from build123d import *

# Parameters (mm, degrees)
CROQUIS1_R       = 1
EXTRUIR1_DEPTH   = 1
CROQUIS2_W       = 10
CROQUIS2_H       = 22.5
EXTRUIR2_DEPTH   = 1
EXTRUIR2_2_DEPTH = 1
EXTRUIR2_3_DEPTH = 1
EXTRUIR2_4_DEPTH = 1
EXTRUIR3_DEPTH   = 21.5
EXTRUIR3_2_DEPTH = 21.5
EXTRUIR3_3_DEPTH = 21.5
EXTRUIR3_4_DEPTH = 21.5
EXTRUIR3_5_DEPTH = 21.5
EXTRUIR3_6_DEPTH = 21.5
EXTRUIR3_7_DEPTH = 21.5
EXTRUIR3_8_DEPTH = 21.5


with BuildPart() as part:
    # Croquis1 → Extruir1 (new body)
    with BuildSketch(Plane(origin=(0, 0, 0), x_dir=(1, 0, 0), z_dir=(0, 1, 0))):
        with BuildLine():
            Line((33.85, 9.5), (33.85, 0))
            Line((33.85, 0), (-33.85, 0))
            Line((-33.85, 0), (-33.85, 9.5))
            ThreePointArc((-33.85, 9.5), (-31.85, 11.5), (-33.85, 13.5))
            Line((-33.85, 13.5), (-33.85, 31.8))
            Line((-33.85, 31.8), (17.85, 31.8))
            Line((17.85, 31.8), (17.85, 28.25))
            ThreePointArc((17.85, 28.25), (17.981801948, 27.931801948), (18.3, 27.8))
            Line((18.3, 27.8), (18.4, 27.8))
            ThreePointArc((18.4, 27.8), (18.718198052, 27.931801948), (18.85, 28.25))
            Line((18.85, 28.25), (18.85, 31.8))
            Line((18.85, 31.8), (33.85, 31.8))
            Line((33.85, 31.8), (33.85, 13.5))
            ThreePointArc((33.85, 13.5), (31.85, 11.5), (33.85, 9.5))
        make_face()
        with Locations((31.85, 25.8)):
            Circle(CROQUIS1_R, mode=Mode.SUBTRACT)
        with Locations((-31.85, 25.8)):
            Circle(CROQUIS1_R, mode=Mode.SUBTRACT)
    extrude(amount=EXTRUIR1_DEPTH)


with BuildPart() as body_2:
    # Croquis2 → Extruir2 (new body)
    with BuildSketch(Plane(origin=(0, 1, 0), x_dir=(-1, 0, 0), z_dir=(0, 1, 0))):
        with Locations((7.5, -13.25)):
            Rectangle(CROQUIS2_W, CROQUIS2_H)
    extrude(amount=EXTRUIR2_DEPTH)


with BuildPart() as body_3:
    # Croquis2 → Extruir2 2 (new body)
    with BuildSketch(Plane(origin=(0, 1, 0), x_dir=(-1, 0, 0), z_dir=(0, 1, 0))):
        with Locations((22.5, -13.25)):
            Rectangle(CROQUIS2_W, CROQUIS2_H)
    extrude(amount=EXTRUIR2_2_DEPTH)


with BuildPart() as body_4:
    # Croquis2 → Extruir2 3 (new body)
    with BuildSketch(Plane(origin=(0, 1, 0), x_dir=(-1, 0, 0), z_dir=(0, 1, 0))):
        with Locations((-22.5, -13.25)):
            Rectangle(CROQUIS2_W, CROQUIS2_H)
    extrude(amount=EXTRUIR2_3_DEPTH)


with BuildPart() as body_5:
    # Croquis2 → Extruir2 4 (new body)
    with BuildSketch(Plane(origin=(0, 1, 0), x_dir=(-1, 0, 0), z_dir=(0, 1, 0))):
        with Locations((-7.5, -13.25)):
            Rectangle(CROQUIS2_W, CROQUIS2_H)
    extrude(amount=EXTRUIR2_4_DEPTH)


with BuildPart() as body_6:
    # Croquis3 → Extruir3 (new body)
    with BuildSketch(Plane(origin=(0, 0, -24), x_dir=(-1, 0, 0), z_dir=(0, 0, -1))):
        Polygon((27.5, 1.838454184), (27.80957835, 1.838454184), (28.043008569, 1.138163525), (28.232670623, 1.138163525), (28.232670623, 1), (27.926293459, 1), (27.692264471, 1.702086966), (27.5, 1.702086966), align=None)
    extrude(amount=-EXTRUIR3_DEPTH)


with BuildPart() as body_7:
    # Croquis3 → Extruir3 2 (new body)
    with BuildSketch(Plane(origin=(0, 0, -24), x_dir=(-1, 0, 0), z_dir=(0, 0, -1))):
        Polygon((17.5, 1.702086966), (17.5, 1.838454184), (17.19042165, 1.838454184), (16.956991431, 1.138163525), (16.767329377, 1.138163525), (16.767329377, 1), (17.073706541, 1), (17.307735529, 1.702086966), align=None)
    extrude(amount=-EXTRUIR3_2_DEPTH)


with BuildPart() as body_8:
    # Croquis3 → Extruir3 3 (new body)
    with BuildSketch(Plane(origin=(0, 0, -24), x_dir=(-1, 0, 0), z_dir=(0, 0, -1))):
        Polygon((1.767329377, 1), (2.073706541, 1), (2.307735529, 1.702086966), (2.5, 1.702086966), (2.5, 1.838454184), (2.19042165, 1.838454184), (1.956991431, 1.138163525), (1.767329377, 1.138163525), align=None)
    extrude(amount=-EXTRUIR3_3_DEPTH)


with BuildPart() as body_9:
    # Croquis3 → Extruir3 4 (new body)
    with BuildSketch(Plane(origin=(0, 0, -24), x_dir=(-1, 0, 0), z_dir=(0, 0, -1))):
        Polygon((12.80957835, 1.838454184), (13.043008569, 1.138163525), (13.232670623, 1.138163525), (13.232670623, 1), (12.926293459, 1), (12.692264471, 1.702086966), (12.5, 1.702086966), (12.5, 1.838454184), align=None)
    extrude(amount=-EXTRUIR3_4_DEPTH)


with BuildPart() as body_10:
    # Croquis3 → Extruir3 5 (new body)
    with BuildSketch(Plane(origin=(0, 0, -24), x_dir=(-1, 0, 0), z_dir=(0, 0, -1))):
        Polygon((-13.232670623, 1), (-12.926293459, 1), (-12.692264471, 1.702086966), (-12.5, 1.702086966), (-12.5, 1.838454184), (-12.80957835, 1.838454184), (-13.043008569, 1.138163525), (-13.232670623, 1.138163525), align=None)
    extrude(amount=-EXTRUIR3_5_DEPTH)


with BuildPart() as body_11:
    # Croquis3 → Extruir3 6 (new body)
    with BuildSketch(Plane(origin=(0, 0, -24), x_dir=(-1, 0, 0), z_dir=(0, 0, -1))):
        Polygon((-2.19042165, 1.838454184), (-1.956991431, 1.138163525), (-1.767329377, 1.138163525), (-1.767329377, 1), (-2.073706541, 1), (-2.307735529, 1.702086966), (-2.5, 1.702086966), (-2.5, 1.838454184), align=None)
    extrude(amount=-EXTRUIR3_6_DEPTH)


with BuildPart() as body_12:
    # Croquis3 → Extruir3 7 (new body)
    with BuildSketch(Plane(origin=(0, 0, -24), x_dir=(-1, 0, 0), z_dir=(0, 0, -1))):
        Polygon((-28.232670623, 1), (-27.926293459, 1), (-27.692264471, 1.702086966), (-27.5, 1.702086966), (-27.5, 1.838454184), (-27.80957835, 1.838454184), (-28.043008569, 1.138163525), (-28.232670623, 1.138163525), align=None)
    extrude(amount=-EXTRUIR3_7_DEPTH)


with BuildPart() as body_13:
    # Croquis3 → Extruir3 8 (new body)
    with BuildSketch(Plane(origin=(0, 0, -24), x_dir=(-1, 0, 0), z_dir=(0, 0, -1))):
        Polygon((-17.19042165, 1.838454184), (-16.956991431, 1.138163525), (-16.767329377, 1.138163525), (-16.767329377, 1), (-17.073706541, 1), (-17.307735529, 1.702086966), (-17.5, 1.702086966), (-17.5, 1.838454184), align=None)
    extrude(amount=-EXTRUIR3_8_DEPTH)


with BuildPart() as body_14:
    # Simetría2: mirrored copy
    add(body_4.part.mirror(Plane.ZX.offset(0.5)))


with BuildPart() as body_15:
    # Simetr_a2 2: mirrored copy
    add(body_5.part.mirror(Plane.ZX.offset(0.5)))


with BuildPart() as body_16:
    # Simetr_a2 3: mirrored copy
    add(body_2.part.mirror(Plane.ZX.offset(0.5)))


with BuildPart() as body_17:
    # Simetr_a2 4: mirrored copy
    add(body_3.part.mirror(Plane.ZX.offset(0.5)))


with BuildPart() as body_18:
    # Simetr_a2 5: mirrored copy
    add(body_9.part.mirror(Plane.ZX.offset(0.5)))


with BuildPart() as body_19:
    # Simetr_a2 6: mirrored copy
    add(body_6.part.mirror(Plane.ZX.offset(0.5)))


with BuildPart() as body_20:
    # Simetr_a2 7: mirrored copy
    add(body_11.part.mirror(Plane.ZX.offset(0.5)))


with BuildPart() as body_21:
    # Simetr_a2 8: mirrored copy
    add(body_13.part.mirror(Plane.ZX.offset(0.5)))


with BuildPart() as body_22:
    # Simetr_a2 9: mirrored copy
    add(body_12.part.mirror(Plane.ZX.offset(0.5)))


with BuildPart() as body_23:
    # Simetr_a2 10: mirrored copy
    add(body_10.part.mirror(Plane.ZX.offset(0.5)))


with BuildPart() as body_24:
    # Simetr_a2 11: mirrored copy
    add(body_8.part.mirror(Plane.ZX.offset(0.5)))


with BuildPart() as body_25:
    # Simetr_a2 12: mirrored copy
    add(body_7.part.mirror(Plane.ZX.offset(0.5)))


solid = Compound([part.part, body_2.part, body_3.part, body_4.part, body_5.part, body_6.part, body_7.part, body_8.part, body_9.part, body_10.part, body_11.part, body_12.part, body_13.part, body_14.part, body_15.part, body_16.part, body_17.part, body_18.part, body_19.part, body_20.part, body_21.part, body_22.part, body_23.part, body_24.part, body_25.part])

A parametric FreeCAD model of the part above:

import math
import FreeCAD as App
import Part
import Sketcher


def add_polygon(sketch, points):
    """Adds a closed chain of lines whose ends are joined by coincident constraints."""
    first, n = sketch.GeometryCount, len(points)
    for a, b in zip(points, points[1:] + points[:1]):
        sketch.addGeometry(Part.LineSegment(App.Vector(*a, 0), App.Vector(*b, 0)), False)
    for i in range(n):
        sketch.addConstraint(Sketcher.Constraint("Coincident", first + i, 2, first + (i + 1) % n, 1))

doc = App.newDocument("Part")
body = doc.addObject("PartDesign::Body", "Body")

# Sketch on XZ plane
sketch1 = body.newObject("Sketcher::SketchObject", "Sketch")
sketch1.AttachmentSupport = (doc.getObject("XZ_Plane"), [""])
sketch1.MapMode = "FlatFace"
sketch1.addGeometry(Part.LineSegment(App.Vector(33.85, 0, 0), App.Vector(33.85, -9.5, 0)), False)
sketch1.addGeometry(Part.ArcOfCircle(Part.Circle(App.Vector(33.85, -11.5, 0), App.Vector(0, 0, 1), 2), math.radians(90), math.radians(270)), False)
sketch1.addGeometry(Part.LineSegment(App.Vector(33.85, -13.5, 0), App.Vector(33.85, -31.8, 0)), False)
sketch1.addGeometry(Part.LineSegment(App.Vector(33.85, -31.8, 0), App.Vector(18.85, -31.8, 0)), False)
sketch1.addGeometry(Part.LineSegment(App.Vector(18.85, -31.8, 0), App.Vector(18.85, -28.25, 0)), False)
sketch1.addGeometry(Part.ArcOfCircle(Part.Circle(App.Vector(18.4, -28.25, 0), App.Vector(0, 0, 1), 0.45), math.radians(0), math.radians(90)), False)
sketch1.addGeometry(Part.LineSegment(App.Vector(18.4, -27.8, 0), App.Vector(18.3, -27.8, 0)), False)
sketch1.addGeometry(Part.ArcOfCircle(Part.Circle(App.Vector(18.3, -28.25, 0), App.Vector(0, 0, 1), 0.45), math.radians(90), math.radians(180)), False)
sketch1.addGeometry(Part.LineSegment(App.Vector(17.85, -28.25, 0), App.Vector(17.85, -31.8, 0)), False)
sketch1.addGeometry(Part.LineSegment(App.Vector(17.85, -31.8, 0), App.Vector(-33.85, -31.8, 0)), False)
sketch1.addGeometry(Part.LineSegment(App.Vector(-33.85, -31.8, 0), App.Vector(-33.85, -13.5, 0)), False)
sketch1.addGeometry(Part.ArcOfCircle(Part.Circle(App.Vector(-33.85, -11.5, 0), App.Vector(0, 0, 1), 2), math.radians(-90), math.radians(90)), False)
sketch1.addGeometry(Part.LineSegment(App.Vector(-33.85, -9.5, 0), App.Vector(-33.85, 0, 0)), False)
sketch1.addGeometry(Part.LineSegment(App.Vector(-33.85, 0, 0), App.Vector(33.85, 0, 0)), False)
sketch1.addGeometry(Part.Circle(App.Vector(31.85, -25.8, 0), App.Vector(0, 0, 1), 1), False)
sketch1.addGeometry(Part.Circle(App.Vector(-31.85, -25.8, 0), App.Vector(0, 0, 1), 1), False)
sketch1.addConstraint(Sketcher.Constraint("Coincident", 0, 2, 1, 1))
sketch1.addConstraint(Sketcher.Constraint("Coincident", 1, 2, 2, 1))
sketch1.addConstraint(Sketcher.Constraint("Coincident", 2, 2, 3, 1))
sketch1.addConstraint(Sketcher.Constraint("Coincident", 3, 2, 4, 1))
sketch1.addConstraint(Sketcher.Constraint("Tangent", 4, 2, 5, 1))
sketch1.addConstraint(Sketcher.Constraint("Tangent", 5, 2, 6, 1))
sketch1.addConstraint(Sketcher.Constraint("Tangent", 6, 2, 7, 1))
sketch1.addConstraint(Sketcher.Constraint("Tangent", 7, 2, 8, 1))
sketch1.addConstraint(Sketcher.Constraint("Coincident", 8, 2, 9, 1))
sketch1.addConstraint(Sketcher.Constraint("Coincident", 9, 2, 10, 1))
sketch1.addConstraint(Sketcher.Constraint("Coincident", 10, 2, 11, 1))
sketch1.addConstraint(Sketcher.Constraint("Coincident", 11, 2, 12, 1))
sketch1.addConstraint(Sketcher.Constraint("Coincident", 12, 2, 13, 1))
sketch1.addConstraint(Sketcher.Constraint("Coincident", 13, 2, 0, 1))
sketch1.addConstraint(Sketcher.Constraint("Vertical", 0))
sketch1.addConstraint(Sketcher.Constraint("Vertical", 2))
sketch1.addConstraint(Sketcher.Constraint("Horizontal", 3))
sketch1.addConstraint(Sketcher.Constraint("Vertical", 4))
sketch1.addConstraint(Sketcher.Constraint("Horizontal", 6))
sketch1.addConstraint(Sketcher.Constraint("Vertical", 8))
sketch1.addConstraint(Sketcher.Constraint("Horizontal", 9))
sketch1.addConstraint(Sketcher.Constraint("Vertical", 10))
sketch1.addConstraint(Sketcher.Constraint("Vertical", 12))
sketch1.addConstraint(Sketcher.Constraint("Horizontal", 13))
sketch1.addConstraint(Sketcher.Constraint("Equal", 5, 7))
sketch1.addConstraint(Sketcher.Constraint("Equal", 1, 11))
sketch1.addConstraint(Sketcher.Constraint("Equal", 14, 15))
sketch1.addConstraint(Sketcher.Constraint("Symmetric", 12, 2, 13, 2, -1, 1))
sketch1.addConstraint(Sketcher.Constraint("Symmetric", 1, 3, 11, 3, -2))
sketch1.addConstraint(Sketcher.Constraint("Symmetric", 14, 3, 15, 3, -2))
sketch1.addConstraint(Sketcher.Constraint("Symmetric", 2, 2, 9, 2, -2))
sketch1.addConstraint(Sketcher.Constraint("Vertical", 1, 3, 0, 2))
sketch1.addConstraint(Sketcher.Constraint("Vertical", 0, 2, 1, 2))
sketch1.addConstraint(Sketcher.Constraint("Diameter", 14, 2.0))
sketch1.addConstraint(Sketcher.Constraint("Radius", 1, 2.0))
sketch1.addConstraint(Sketcher.Constraint("DistanceX", 3, 2, 3, 1, 15.0))
sketch1.addConstraint(Sketcher.Constraint("Radius", 5, 0.45))
sketch1.addConstraint(Sketcher.Constraint("DistanceX", 6, 2, 6, 1, 0.1))
sketch1.addConstraint(Sketcher.Constraint("DistanceX", 9, 2, 9, 1, 51.7))
sketch1.addConstraint(Sketcher.Constraint("DistanceY", 0, 2, 0, 1, 9.5))
sketch1.addConstraint(Sketcher.Constraint("DistanceY", 2, 2, 2, 1, 18.3))
sketch1.addConstraint(Sketcher.Constraint("DistanceX", 14, 3, 1, 3, 2.0))
sketch1.addConstraint(Sketcher.Constraint("DistanceY", 2, 2, 14, 3, 6.0))
sketch1.addConstraint(Sketcher.Constraint("DistanceY", 3, 2, 5, 2, 4.0))
pad1 = body.newObject("PartDesign::Pad", "Pad")
pad1.Profile = sketch1
pad1.Length = 1
pad1.Reversed = True
body2 = doc.addObject("PartDesign::Body", "Body001")

# Sketch on XZ plane
sketch2 = body2.newObject("Sketcher::SketchObject", "Sketch001")
sketch2.AttachmentSupport = (doc.getObject("XZ_Plane001"), [""])
sketch2.MapMode = "FlatFace"
sketch2.AttachmentOffset = App.Placement(App.Vector(0, 0, -1), App.Rotation())
add_polygon(sketch2, [(-2, -2), (-2, -24), (-12, -24), (-12, -2)])  # lines 0-3
sketch2.addConstraint(Sketcher.Constraint("Vertical", 0))
sketch2.addConstraint(Sketcher.Constraint("Horizontal", 1))
sketch2.addConstraint(Sketcher.Constraint("Vertical", 2))
sketch2.addConstraint(Sketcher.Constraint("Horizontal", 3))
sketch2.addConstraint(Sketcher.Constraint("DistanceX", 1, 2, 1, 1, 10.0))
sketch2.addConstraint(Sketcher.Constraint("DistanceY", 0, 2, 0, 1, 22.5))
sketch2.addConstraint(Sketcher.Constraint("DistanceY", 2, 2, -1, 1, 2.0))
sketch2.addConstraint(Sketcher.Constraint("DistanceX", 0, 2, -1, 1, 2.5))
pad2 = body2.newObject("PartDesign::Pad", "Pad001")
pad2.Profile = sketch2
pad2.Length = 1
pad2.Reversed = True
body3 = doc.addObject("PartDesign::Body", "Body002")

# Sketch on XZ plane
sketch3 = body3.newObject("Sketcher::SketchObject", "Sketch002")
sketch3.AttachmentSupport = (doc.getObject("XZ_Plane002"), [""])
sketch3.MapMode = "FlatFace"
sketch3.AttachmentOffset = App.Placement(App.Vector(0, 0, -1), App.Rotation())
add_polygon(sketch3, [(-18, -2), (-18, -24), (-28, -24), (-28, -2)])  # lines 0-3
sketch3.addConstraint(Sketcher.Constraint("Vertical", 0))
sketch3.addConstraint(Sketcher.Constraint("Horizontal", 1))
sketch3.addConstraint(Sketcher.Constraint("Vertical", 2))
sketch3.addConstraint(Sketcher.Constraint("Horizontal", 3))
sketch3.addConstraint(Sketcher.Constraint("DistanceX", 1, 2, 1, 1, 10.0))
sketch3.addConstraint(Sketcher.Constraint("DistanceY", 0, 2, 0, 1, 22.5))
sketch3.addConstraint(Sketcher.Constraint("DistanceY", 2, 2, -1, 1, 2.0))
sketch3.addConstraint(Sketcher.Constraint("DistanceX", 0, 2, -1, 1, 17.5))
pad3 = body3.newObject("PartDesign::Pad", "Pad002")
pad3.Profile = sketch3
pad3.Length = 1
pad3.Reversed = True
body4 = doc.addObject("PartDesign::Body", "Body003")

# Sketch on XZ plane
sketch4 = body4.newObject("Sketcher::SketchObject", "Sketch003")
sketch4.AttachmentSupport = (doc.getObject("XZ_Plane003"), [""])
sketch4.MapMode = "FlatFace"
sketch4.AttachmentOffset = App.Placement(App.Vector(0, 0, -1), App.Rotation())
add_polygon(sketch4, [(28, -2), (28, -24), (18, -24), (18, -2)])  # lines 0-3
sketch4.addConstraint(Sketcher.Constraint("Vertical", 0))
sketch4.addConstraint(Sketcher.Constraint("Horizontal", 1))
sketch4.addConstraint(Sketcher.Constraint("Vertical", 2))
sketch4.addConstraint(Sketcher.Constraint("Horizontal", 3))
sketch4.addConstraint(Sketcher.Constraint("DistanceX", 1, 2, 1, 1, 10.0))
sketch4.addConstraint(Sketcher.Constraint("DistanceY", 0, 2, 0, 1, 22.5))
sketch4.addConstraint(Sketcher.Constraint("DistanceY", 2, 2, -1, 1, 2.0))
sketch4.addConstraint(Sketcher.Constraint("DistanceX", -1, 1, 0, 2, 27.5))
pad4 = body4.newObject("PartDesign::Pad", "Pad003")
pad4.Profile = sketch4
pad4.Length = 1
pad4.Reversed = True
body5 = doc.addObject("PartDesign::Body", "Body004")

# Sketch on XZ plane
sketch5 = body5.newObject("Sketcher::SketchObject", "Sketch004")
sketch5.AttachmentSupport = (doc.getObject("XZ_Plane004"), [""])
sketch5.MapMode = "FlatFace"
sketch5.AttachmentOffset = App.Placement(App.Vector(0, 0, -1), App.Rotation())
add_polygon(sketch5, [(12, -2), (12, -24), (2, -24), (2, -2)])  # lines 0-3
sketch5.addConstraint(Sketcher.Constraint("Vertical", 0))
sketch5.addConstraint(Sketcher.Constraint("Horizontal", 1))
sketch5.addConstraint(Sketcher.Constraint("Vertical", 2))
sketch5.addConstraint(Sketcher.Constraint("Horizontal", 3))
sketch5.addConstraint(Sketcher.Constraint("DistanceX", 1, 2, 1, 1, 10.0))
sketch5.addConstraint(Sketcher.Constraint("DistanceY", 0, 2, 0, 1, 22.5))
sketch5.addConstraint(Sketcher.Constraint("DistanceY", 2, 2, -1, 1, 2.0))
sketch5.addConstraint(Sketcher.Constraint("DistanceX", -1, 1, 0, 2, 12.5))
pad5 = body5.newObject("PartDesign::Pad", "Pad004")
pad5.Profile = sketch5
pad5.Length = 1
pad5.Reversed = True
body6 = doc.addObject("PartDesign::Body", "Body005")

# Sketch on XY plane
sketch6 = body6.newObject("Sketcher::SketchObject", "Sketch005")
sketch6.AttachmentSupport = (doc.getObject("XY_Plane005"), [""])
sketch6.MapMode = "FlatFace"
sketch6.AttachmentOffset = App.Placement(App.Vector(0, 0, -24), App.Rotation())
add_polygon(sketch6, [(-27.81, 1.84), (-27.5, 1.84), (-27.5, 1.7), (-27.69, 1.7), (-27.93, 1), (-28.23, 1), (-28.23, 1.14), (-28.04, 1.14)])  # lines 0-7
sketch6.addConstraint(Sketcher.Constraint("Horizontal", 0))
sketch6.addConstraint(Sketcher.Constraint("Vertical", 1))
sketch6.addConstraint(Sketcher.Constraint("Horizontal", 2))
sketch6.addConstraint(Sketcher.Constraint("Horizontal", 4))
sketch6.addConstraint(Sketcher.Constraint("Vertical", 5))
sketch6.addConstraint(Sketcher.Constraint("Horizontal", 6))
sketch6.addConstraint(Sketcher.Constraint("Parallel", 3, 7))
sketch6.addConstraint(Sketcher.Constraint("DistanceY", -1, 1, 3, 2, 1.0))
sketch6.addConstraint(Sketcher.Constraint("DistanceX", 0, 2, -1, 1, 27.5))
sketch6.addConstraint(Sketcher.Constraint("DistanceX", 0, 1, 0, 2, 0.309578))
sketch6.addConstraint(Sketcher.Constraint("Distance", 7, 0.738171))
sketch6.addConstraint(Sketcher.Constraint("DistanceX", 2, 2, 2, 1, 0.192264))
sketch6.addConstraint(Sketcher.Constraint("DistanceX", 4, 2, 4, 1, 0.306377))
sketch6.addConstraint(Sketcher.Constraint("DistanceX", 6, 1, 6, 2, 0.189662))
sketch6.addConstraint(Sketcher.Constraint("DistanceY", 1, 2, 1, 1, 0.136367))
sketch6.addConstraint(Sketcher.Constraint("DistanceY", 5, 1, 5, 2, 0.138164))
pad6 = body6.newObject("PartDesign::Pad", "Pad005")
pad6.Profile = sketch6
pad6.Length = 21.5
body7 = doc.addObject("PartDesign::Body", "Body006")

# Sketch on XY plane
sketch7 = body7.newObject("Sketcher::SketchObject", "Sketch006")
sketch7.AttachmentSupport = (doc.getObject("XY_Plane006"), [""])
sketch7.MapMode = "FlatFace"
sketch7.AttachmentOffset = App.Placement(App.Vector(0, 0, -24), App.Rotation())
add_polygon(sketch7, [(-17.5, 1.7), (-17.5, 1.84), (-17.19, 1.84), (-16.96, 1.14), (-16.77, 1.14), (-16.77, 1), (-17.07, 1), (-17.31, 1.7)])  # lines 0-7
sketch7.addConstraint(Sketcher.Constraint("Vertical", 0))
sketch7.addConstraint(Sketcher.Constraint("Horizontal", 1))
sketch7.addConstraint(Sketcher.Constraint("Horizontal", 3))
sketch7.addConstraint(Sketcher.Constraint("Vertical", 4))
sketch7.addConstraint(Sketcher.Constraint("Horizontal", 5))
sketch7.addConstraint(Sketcher.Constraint("Horizontal", 7))
sketch7.addConstraint(Sketcher.Constraint("Parallel", 2, 6))
sketch7.addConstraint(Sketcher.Constraint("DistanceY", -1, 1, 4, 2, 1.0))
sketch7.addConstraint(Sketcher.Constraint("DistanceX", 0, 2, -1, 1, 17.5))
sketch7.addConstraint(Sketcher.Constraint("DistanceX", 1, 1, 1, 2, 0.309578))
sketch7.addConstraint(Sketcher.Constraint("Distance", 2, 0.738171))
sketch7.addConstraint(Sketcher.Constraint("DistanceX", 3, 1, 3, 2, 0.189662))
sketch7.addConstraint(Sketcher.Constraint("DistanceX", 5, 2, 5, 1, 0.306377))
sketch7.addConstraint(Sketcher.Constraint("DistanceX", 7, 2, 7, 1, 0.192264))
sketch7.addConstraint(Sketcher.Constraint("DistanceY", 0, 1, 0, 2, 0.136367))
sketch7.addConstraint(Sketcher.Constraint("DistanceY", 4, 2, 4, 1, 0.138164))
pad7 = body7.newObject("PartDesign::Pad", "Pad006")
pad7.Profile = sketch7
pad7.Length = 21.5
body8 = doc.addObject("PartDesign::Body", "Body007")

# Sketch on XY plane
sketch8 = body8.newObject("Sketcher::SketchObject", "Sketch007")
sketch8.AttachmentSupport = (doc.getObject("XY_Plane007"), [""])
sketch8.MapMode = "FlatFace"
sketch8.AttachmentOffset = App.Placement(App.Vector(0, 0, -24), App.Rotation())
add_polygon(sketch8, [(-1.77, 1), (-2.07, 1), (-2.31, 1.7), (-2.5, 1.7), (-2.5, 1.84), (-2.19, 1.84), (-1.96, 1.14), (-1.77, 1.14)])  # lines 0-7
sketch8.addConstraint(Sketcher.Constraint("Horizontal", 0))
sketch8.addConstraint(Sketcher.Constraint("Horizontal", 2))
sketch8.addConstraint(Sketcher.Constraint("Vertical", 3))
sketch8.addConstraint(Sketcher.Constraint("Horizontal", 4))
sketch8.addConstraint(Sketcher.Constraint("Horizontal", 6))
sketch8.addConstraint(Sketcher.Constraint("Vertical", 7))
sketch8.addConstraint(Sketcher.Constraint("Parallel", 1, 5))
sketch8.addConstraint(Sketcher.Constraint("DistanceY", -1, 1, 0, 2, 1.0))
sketch8.addConstraint(Sketcher.Constraint("DistanceX", 2, 2, -1, 1, 2.5))
sketch8.addConstraint(Sketcher.Constraint("DistanceX", 4, 1, 4, 2, 0.309578))
sketch8.addConstraint(Sketcher.Constraint("Distance", 5, 0.738171))
sketch8.addConstraint(Sketcher.Constraint("DistanceX", 0, 2, 0, 1, 0.306377))
sketch8.addConstraint(Sketcher.Constraint("DistanceX", 2, 2, 2, 1, 0.192264))
sketch8.addConstraint(Sketcher.Constraint("DistanceX", 6, 1, 6, 2, 0.189662))
sketch8.addConstraint(Sketcher.Constraint("DistanceY", 3, 1, 3, 2, 0.136367))
sketch8.addConstraint(Sketcher.Constraint("DistanceY", 7, 2, 7, 1, 0.138164))
pad8 = body8.newObject("PartDesign::Pad", "Pad007")
pad8.Profile = sketch8
pad8.Length = 21.5
body9 = doc.addObject("PartDesign::Body", "Body008")

# Sketch on XY plane
sketch9 = body9.newObject("Sketcher::SketchObject", "Sketch008")
sketch9.AttachmentSupport = (doc.getObject("XY_Plane008"), [""])
sketch9.MapMode = "FlatFace"
sketch9.AttachmentOffset = App.Placement(App.Vector(0, 0, -24), App.Rotation())
add_polygon(sketch9, [(-13.04, 1.14), (-12.81, 1.84), (-12.5, 1.84), (-12.5, 1.7), (-12.69, 1.7), (-12.93, 1), (-13.23, 1), (-13.23, 1.14)])  # lines 0-7
sketch9.addConstraint(Sketcher.Constraint("Horizontal", 1))
sketch9.addConstraint(Sketcher.Constraint("Vertical", 2))
sketch9.addConstraint(Sketcher.Constraint("Horizontal", 3))
sketch9.addConstraint(Sketcher.Constraint("Horizontal", 5))
sketch9.addConstraint(Sketcher.Constraint("Vertical", 6))
sketch9.addConstraint(Sketcher.Constraint("Horizontal", 7))
sketch9.addConstraint(Sketcher.Constraint("Parallel", 0, 4))
sketch9.addConstraint(Sketcher.Constraint("DistanceY", -1, 1, 4, 2, 1.0))
sketch9.addConstraint(Sketcher.Constraint("DistanceX", 1, 2, -1, 1, 12.5))
sketch9.addConstraint(Sketcher.Constraint("DistanceX", 1, 1, 1, 2, 0.309578))
sketch9.addConstraint(Sketcher.Constraint("Distance", 0, 0.738171))
sketch9.addConstraint(Sketcher.Constraint("DistanceX", 3, 2, 3, 1, 0.192264))
sketch9.addConstraint(Sketcher.Constraint("DistanceX", 5, 2, 5, 1, 0.306377))
sketch9.addConstraint(Sketcher.Constraint("DistanceX", 7, 1, 7, 2, 0.189662))
sketch9.addConstraint(Sketcher.Constraint("DistanceY", 2, 2, 2, 1, 0.136367))
sketch9.addConstraint(Sketcher.Constraint("DistanceY", 6, 1, 6, 2, 0.138164))
pad9 = body9.newObject("PartDesign::Pad", "Pad008")
pad9.Profile = sketch9
pad9.Length = 21.5
body10 = doc.addObject("PartDesign::Body", "Body009")

# Sketch on XY plane
sketch10 = body10.newObject("Sketcher::SketchObject", "Sketch009")
sketch10.AttachmentSupport = (doc.getObject("XY_Plane009"), [""])
sketch10.MapMode = "FlatFace"
sketch10.AttachmentOffset = App.Placement(App.Vector(0, 0, -24), App.Rotation())
add_polygon(sketch10, [(13.23, 1), (12.93, 1), (12.69, 1.7), (12.5, 1.7), (12.5, 1.84), (12.81, 1.84), (13.04, 1.14), (13.23, 1.14)])  # lines 0-7
sketch10.addConstraint(Sketcher.Constraint("Horizontal", 0))
sketch10.addConstraint(Sketcher.Constraint("Horizontal", 2))
sketch10.addConstraint(Sketcher.Constraint("Vertical", 3))
sketch10.addConstraint(Sketcher.Constraint("Horizontal", 4))
sketch10.addConstraint(Sketcher.Constraint("Horizontal", 6))
sketch10.addConstraint(Sketcher.Constraint("Vertical", 7))
sketch10.addConstraint(Sketcher.Constraint("Parallel", 1, 5))
sketch10.addConstraint(Sketcher.Constraint("DistanceY", -1, 1, 0, 2, 1.0))
sketch10.addConstraint(Sketcher.Constraint("DistanceX", -1, 1, 2, 2, 12.5))
sketch10.addConstraint(Sketcher.Constraint("DistanceX", 4, 1, 4, 2, 0.309578))
sketch10.addConstraint(Sketcher.Constraint("Distance", 5, 0.738171))
sketch10.addConstraint(Sketcher.Constraint("DistanceX", 0, 2, 0, 1, 0.306377))
sketch10.addConstraint(Sketcher.Constraint("DistanceX", 2, 2, 2, 1, 0.192264))
sketch10.addConstraint(Sketcher.Constraint("DistanceX", 6, 1, 6, 2, 0.189662))
sketch10.addConstraint(Sketcher.Constraint("DistanceY", 3, 1, 3, 2, 0.136367))
sketch10.addConstraint(Sketcher.Constraint("DistanceY", 7, 2, 7, 1, 0.138164))
pad10 = body10.newObject("PartDesign::Pad", "Pad009")
pad10.Profile = sketch10
pad10.Length = 21.5
body11 = doc.addObject("PartDesign::Body", "Body010")

# Sketch on XY plane
sketch11 = body11.newObject("Sketcher::SketchObject", "Sketch010")
sketch11.AttachmentSupport = (doc.getObject("XY_Plane010"), [""])
sketch11.MapMode = "FlatFace"
sketch11.AttachmentOffset = App.Placement(App.Vector(0, 0, -24), App.Rotation())
add_polygon(sketch11, [(1.96, 1.14), (2.19, 1.84), (2.5, 1.84), (2.5, 1.7), (2.31, 1.7), (2.07, 1), (1.77, 1), (1.77, 1.14)])  # lines 0-7
sketch11.addConstraint(Sketcher.Constraint("Horizontal", 1))
sketch11.addConstraint(Sketcher.Constraint("Vertical", 2))
sketch11.addConstraint(Sketcher.Constraint("Horizontal", 3))
sketch11.addConstraint(Sketcher.Constraint("Horizontal", 5))
sketch11.addConstraint(Sketcher.Constraint("Vertical", 6))
sketch11.addConstraint(Sketcher.Constraint("Horizontal", 7))
sketch11.addConstraint(Sketcher.Constraint("Parallel", 0, 4))
sketch11.addConstraint(Sketcher.Constraint("DistanceY", -1, 1, 4, 2, 1.0))
sketch11.addConstraint(Sketcher.Constraint("DistanceX", -1, 1, 1, 2, 2.5))
sketch11.addConstraint(Sketcher.Constraint("DistanceX", 1, 1, 1, 2, 0.309578))
sketch11.addConstraint(Sketcher.Constraint("Distance", 0, 0.738171))
sketch11.addConstraint(Sketcher.Constraint("DistanceX", 3, 2, 3, 1, 0.192264))
sketch11.addConstraint(Sketcher.Constraint("DistanceX", 5, 2, 5, 1, 0.306377))
sketch11.addConstraint(Sketcher.Constraint("DistanceX", 7, 1, 7, 2, 0.189662))
sketch11.addConstraint(Sketcher.Constraint("DistanceY", 2, 2, 2, 1, 0.136367))
sketch11.addConstraint(Sketcher.Constraint("DistanceY", 6, 1, 6, 2, 0.138164))
pad11 = body11.newObject("PartDesign::Pad", "Pad010")
pad11.Profile = sketch11
pad11.Length = 21.5
body12 = doc.addObject("PartDesign::Body", "Body011")

# Sketch on XY plane
sketch12 = body12.newObject("Sketcher::SketchObject", "Sketch011")
sketch12.AttachmentSupport = (doc.getObject("XY_Plane011"), [""])
sketch12.MapMode = "FlatFace"
sketch12.AttachmentOffset = App.Placement(App.Vector(0, 0, -24), App.Rotation())
add_polygon(sketch12, [(28.23, 1), (27.93, 1), (27.69, 1.7), (27.5, 1.7), (27.5, 1.84), (27.81, 1.84), (28.04, 1.14), (28.23, 1.14)])  # lines 0-7
sketch12.addConstraint(Sketcher.Constraint("Horizontal", 0))
sketch12.addConstraint(Sketcher.Constraint("Horizontal", 2))
sketch12.addConstraint(Sketcher.Constraint("Vertical", 3))
sketch12.addConstraint(Sketcher.Constraint("Horizontal", 4))
sketch12.addConstraint(Sketcher.Constraint("Horizontal", 6))
sketch12.addConstraint(Sketcher.Constraint("Vertical", 7))
sketch12.addConstraint(Sketcher.Constraint("Parallel", 1, 5))
sketch12.addConstraint(Sketcher.Constraint("DistanceY", -1, 1, 0, 2, 1.0))
sketch12.addConstraint(Sketcher.Constraint("DistanceX", -1, 1, 2, 2, 27.5))
sketch12.addConstraint(Sketcher.Constraint("DistanceX", 4, 1, 4, 2, 0.309578))
sketch12.addConstraint(Sketcher.Constraint("Distance", 5, 0.738171))
sketch12.addConstraint(Sketcher.Constraint("DistanceX", 0, 2, 0, 1, 0.306377))
sketch12.addConstraint(Sketcher.Constraint("DistanceX", 2, 2, 2, 1, 0.192264))
sketch12.addConstraint(Sketcher.Constraint("DistanceX", 6, 1, 6, 2, 0.189662))
sketch12.addConstraint(Sketcher.Constraint("DistanceY", 3, 1, 3, 2, 0.136367))
sketch12.addConstraint(Sketcher.Constraint("DistanceY", 7, 2, 7, 1, 0.138164))
pad12 = body12.newObject("PartDesign::Pad", "Pad011")
pad12.Profile = sketch12
pad12.Length = 21.5
body13 = doc.addObject("PartDesign::Body", "Body012")

# Sketch on XY plane
sketch13 = body13.newObject("Sketcher::SketchObject", "Sketch012")
sketch13.AttachmentSupport = (doc.getObject("XY_Plane012"), [""])
sketch13.MapMode = "FlatFace"
sketch13.AttachmentOffset = App.Placement(App.Vector(0, 0, -24), App.Rotation())
add_polygon(sketch13, [(16.96, 1.14), (17.19, 1.84), (17.5, 1.84), (17.5, 1.7), (17.31, 1.7), (17.07, 1), (16.77, 1), (16.77, 1.14)])  # lines 0-7
sketch13.addConstraint(Sketcher.Constraint("Horizontal", 1))
sketch13.addConstraint(Sketcher.Constraint("Vertical", 2))
sketch13.addConstraint(Sketcher.Constraint("Horizontal", 3))
sketch13.addConstraint(Sketcher.Constraint("Horizontal", 5))
sketch13.addConstraint(Sketcher.Constraint("Vertical", 6))
sketch13.addConstraint(Sketcher.Constraint("Horizontal", 7))
sketch13.addConstraint(Sketcher.Constraint("Parallel", 0, 4))
sketch13.addConstraint(Sketcher.Constraint("DistanceY", -1, 1, 4, 2, 1.0))
sketch13.addConstraint(Sketcher.Constraint("DistanceX", -1, 1, 1, 2, 17.5))
sketch13.addConstraint(Sketcher.Constraint("DistanceX", 1, 1, 1, 2, 0.309578))
sketch13.addConstraint(Sketcher.Constraint("Distance", 0, 0.738171))
sketch13.addConstraint(Sketcher.Constraint("DistanceX", 3, 2, 3, 1, 0.192264))
sketch13.addConstraint(Sketcher.Constraint("DistanceX", 5, 2, 5, 1, 0.306377))
sketch13.addConstraint(Sketcher.Constraint("DistanceX", 7, 1, 7, 2, 0.189662))
sketch13.addConstraint(Sketcher.Constraint("DistanceY", 2, 2, 2, 1, 0.136367))
sketch13.addConstraint(Sketcher.Constraint("DistanceY", 6, 1, 6, 2, 0.138164))
pad13 = body13.newObject("PartDesign::Pad", "Pad012")
pad13.Profile = sketch13
pad13.Length = 21.5
body14 = doc.addObject("PartDesign::Body", "Body013")
doc.recompute()

mirroring = doc.addObject("Part::Mirroring", "Mirroring")
mirroring.Source = body4
mirroring.Base = App.Vector(0, 0.5, 0)
mirroring.Normal = App.Vector(0, 1, 0)
body14.BaseFeature = mirroring
doc.recompute()
body15 = doc.addObject("PartDesign::Body", "Body014")
doc.recompute()

mirroring2 = doc.addObject("Part::Mirroring", "Mirroring001")
mirroring2.Source = body5
mirroring2.Base = App.Vector(0, 0.5, 0)
mirroring2.Normal = App.Vector(0, 1, 0)
body15.BaseFeature = mirroring2
doc.recompute()
body16 = doc.addObject("PartDesign::Body", "Body015")
doc.recompute()

mirroring3 = doc.addObject("Part::Mirroring", "Mirroring002")
mirroring3.Source = body2
mirroring3.Base = App.Vector(0, 0.5, 0)
mirroring3.Normal = App.Vector(0, 1, 0)
body16.BaseFeature = mirroring3
doc.recompute()
body17 = doc.addObject("PartDesign::Body", "Body016")
doc.recompute()

mirroring4 = doc.addObject("Part::Mirroring", "Mirroring003")
mirroring4.Source = body3
mirroring4.Base = App.Vector(0, 0.5, 0)
mirroring4.Normal = App.Vector(0, 1, 0)
body17.BaseFeature = mirroring4
doc.recompute()
body18 = doc.addObject("PartDesign::Body", "Body017")
doc.recompute()

mirroring5 = doc.addObject("Part::Mirroring", "Mirroring004")
mirroring5.Source = body9
mirroring5.Base = App.Vector(0, 0.5, 0)
mirroring5.Normal = App.Vector(0, 1, 0)
body18.BaseFeature = mirroring5
doc.recompute()
body19 = doc.addObject("PartDesign::Body", "Body018")
doc.recompute()

mirroring6 = doc.addObject("Part::Mirroring", "Mirroring005")
mirroring6.Source = body6
mirroring6.Base = App.Vector(0, 0.5, 0)
mirroring6.Normal = App.Vector(0, 1, 0)
body19.BaseFeature = mirroring6
doc.recompute()
body20 = doc.addObject("PartDesign::Body", "Body019")
doc.recompute()

mirroring7 = doc.addObject("Part::Mirroring", "Mirroring006")
mirroring7.Source = body11
mirroring7.Base = App.Vector(0, 0.5, 0)
mirroring7.Normal = App.Vector(0, 1, 0)
body20.BaseFeature = mirroring7
doc.recompute()
body21 = doc.addObject("PartDesign::Body", "Body020")
doc.recompute()

mirroring8 = doc.addObject("Part::Mirroring", "Mirroring007")
mirroring8.Source = body13
mirroring8.Base = App.Vector(0, 0.5, 0)
mirroring8.Normal = App.Vector(0, 1, 0)
body21.BaseFeature = mirroring8
doc.recompute()
body22 = doc.addObject("PartDesign::Body", "Body021")
doc.recompute()

mirroring9 = doc.addObject("Part::Mirroring", "Mirroring008")
mirroring9.Source = body12
mirroring9.Base = App.Vector(0, 0.5, 0)
mirroring9.Normal = App.Vector(0, 1, 0)
body22.BaseFeature = mirroring9
doc.recompute()
body23 = doc.addObject("PartDesign::Body", "Body022")
doc.recompute()

mirroring10 = doc.addObject("Part::Mirroring", "Mirroring009")
mirroring10.Source = body10
mirroring10.Base = App.Vector(0, 0.5, 0)
mirroring10.Normal = App.Vector(0, 1, 0)
body23.BaseFeature = mirroring10
doc.recompute()
body24 = doc.addObject("PartDesign::Body", "Body023")
doc.recompute()

mirroring11 = doc.addObject("Part::Mirroring", "Mirroring010")
mirroring11.Source = body8
mirroring11.Base = App.Vector(0, 0.5, 0)
mirroring11.Normal = App.Vector(0, 1, 0)
body24.BaseFeature = mirroring11
doc.recompute()
body25 = doc.addObject("PartDesign::Body", "Body024")
doc.recompute()

mirroring12 = doc.addObject("Part::Mirroring", "Mirroring011")
mirroring12.Source = body7
mirroring12.Base = App.Vector(0, 0.5, 0)
mirroring12.Normal = App.Vector(0, 1, 0)
body25.BaseFeature = mirroring12
doc.recompute()

doc.recompute()
